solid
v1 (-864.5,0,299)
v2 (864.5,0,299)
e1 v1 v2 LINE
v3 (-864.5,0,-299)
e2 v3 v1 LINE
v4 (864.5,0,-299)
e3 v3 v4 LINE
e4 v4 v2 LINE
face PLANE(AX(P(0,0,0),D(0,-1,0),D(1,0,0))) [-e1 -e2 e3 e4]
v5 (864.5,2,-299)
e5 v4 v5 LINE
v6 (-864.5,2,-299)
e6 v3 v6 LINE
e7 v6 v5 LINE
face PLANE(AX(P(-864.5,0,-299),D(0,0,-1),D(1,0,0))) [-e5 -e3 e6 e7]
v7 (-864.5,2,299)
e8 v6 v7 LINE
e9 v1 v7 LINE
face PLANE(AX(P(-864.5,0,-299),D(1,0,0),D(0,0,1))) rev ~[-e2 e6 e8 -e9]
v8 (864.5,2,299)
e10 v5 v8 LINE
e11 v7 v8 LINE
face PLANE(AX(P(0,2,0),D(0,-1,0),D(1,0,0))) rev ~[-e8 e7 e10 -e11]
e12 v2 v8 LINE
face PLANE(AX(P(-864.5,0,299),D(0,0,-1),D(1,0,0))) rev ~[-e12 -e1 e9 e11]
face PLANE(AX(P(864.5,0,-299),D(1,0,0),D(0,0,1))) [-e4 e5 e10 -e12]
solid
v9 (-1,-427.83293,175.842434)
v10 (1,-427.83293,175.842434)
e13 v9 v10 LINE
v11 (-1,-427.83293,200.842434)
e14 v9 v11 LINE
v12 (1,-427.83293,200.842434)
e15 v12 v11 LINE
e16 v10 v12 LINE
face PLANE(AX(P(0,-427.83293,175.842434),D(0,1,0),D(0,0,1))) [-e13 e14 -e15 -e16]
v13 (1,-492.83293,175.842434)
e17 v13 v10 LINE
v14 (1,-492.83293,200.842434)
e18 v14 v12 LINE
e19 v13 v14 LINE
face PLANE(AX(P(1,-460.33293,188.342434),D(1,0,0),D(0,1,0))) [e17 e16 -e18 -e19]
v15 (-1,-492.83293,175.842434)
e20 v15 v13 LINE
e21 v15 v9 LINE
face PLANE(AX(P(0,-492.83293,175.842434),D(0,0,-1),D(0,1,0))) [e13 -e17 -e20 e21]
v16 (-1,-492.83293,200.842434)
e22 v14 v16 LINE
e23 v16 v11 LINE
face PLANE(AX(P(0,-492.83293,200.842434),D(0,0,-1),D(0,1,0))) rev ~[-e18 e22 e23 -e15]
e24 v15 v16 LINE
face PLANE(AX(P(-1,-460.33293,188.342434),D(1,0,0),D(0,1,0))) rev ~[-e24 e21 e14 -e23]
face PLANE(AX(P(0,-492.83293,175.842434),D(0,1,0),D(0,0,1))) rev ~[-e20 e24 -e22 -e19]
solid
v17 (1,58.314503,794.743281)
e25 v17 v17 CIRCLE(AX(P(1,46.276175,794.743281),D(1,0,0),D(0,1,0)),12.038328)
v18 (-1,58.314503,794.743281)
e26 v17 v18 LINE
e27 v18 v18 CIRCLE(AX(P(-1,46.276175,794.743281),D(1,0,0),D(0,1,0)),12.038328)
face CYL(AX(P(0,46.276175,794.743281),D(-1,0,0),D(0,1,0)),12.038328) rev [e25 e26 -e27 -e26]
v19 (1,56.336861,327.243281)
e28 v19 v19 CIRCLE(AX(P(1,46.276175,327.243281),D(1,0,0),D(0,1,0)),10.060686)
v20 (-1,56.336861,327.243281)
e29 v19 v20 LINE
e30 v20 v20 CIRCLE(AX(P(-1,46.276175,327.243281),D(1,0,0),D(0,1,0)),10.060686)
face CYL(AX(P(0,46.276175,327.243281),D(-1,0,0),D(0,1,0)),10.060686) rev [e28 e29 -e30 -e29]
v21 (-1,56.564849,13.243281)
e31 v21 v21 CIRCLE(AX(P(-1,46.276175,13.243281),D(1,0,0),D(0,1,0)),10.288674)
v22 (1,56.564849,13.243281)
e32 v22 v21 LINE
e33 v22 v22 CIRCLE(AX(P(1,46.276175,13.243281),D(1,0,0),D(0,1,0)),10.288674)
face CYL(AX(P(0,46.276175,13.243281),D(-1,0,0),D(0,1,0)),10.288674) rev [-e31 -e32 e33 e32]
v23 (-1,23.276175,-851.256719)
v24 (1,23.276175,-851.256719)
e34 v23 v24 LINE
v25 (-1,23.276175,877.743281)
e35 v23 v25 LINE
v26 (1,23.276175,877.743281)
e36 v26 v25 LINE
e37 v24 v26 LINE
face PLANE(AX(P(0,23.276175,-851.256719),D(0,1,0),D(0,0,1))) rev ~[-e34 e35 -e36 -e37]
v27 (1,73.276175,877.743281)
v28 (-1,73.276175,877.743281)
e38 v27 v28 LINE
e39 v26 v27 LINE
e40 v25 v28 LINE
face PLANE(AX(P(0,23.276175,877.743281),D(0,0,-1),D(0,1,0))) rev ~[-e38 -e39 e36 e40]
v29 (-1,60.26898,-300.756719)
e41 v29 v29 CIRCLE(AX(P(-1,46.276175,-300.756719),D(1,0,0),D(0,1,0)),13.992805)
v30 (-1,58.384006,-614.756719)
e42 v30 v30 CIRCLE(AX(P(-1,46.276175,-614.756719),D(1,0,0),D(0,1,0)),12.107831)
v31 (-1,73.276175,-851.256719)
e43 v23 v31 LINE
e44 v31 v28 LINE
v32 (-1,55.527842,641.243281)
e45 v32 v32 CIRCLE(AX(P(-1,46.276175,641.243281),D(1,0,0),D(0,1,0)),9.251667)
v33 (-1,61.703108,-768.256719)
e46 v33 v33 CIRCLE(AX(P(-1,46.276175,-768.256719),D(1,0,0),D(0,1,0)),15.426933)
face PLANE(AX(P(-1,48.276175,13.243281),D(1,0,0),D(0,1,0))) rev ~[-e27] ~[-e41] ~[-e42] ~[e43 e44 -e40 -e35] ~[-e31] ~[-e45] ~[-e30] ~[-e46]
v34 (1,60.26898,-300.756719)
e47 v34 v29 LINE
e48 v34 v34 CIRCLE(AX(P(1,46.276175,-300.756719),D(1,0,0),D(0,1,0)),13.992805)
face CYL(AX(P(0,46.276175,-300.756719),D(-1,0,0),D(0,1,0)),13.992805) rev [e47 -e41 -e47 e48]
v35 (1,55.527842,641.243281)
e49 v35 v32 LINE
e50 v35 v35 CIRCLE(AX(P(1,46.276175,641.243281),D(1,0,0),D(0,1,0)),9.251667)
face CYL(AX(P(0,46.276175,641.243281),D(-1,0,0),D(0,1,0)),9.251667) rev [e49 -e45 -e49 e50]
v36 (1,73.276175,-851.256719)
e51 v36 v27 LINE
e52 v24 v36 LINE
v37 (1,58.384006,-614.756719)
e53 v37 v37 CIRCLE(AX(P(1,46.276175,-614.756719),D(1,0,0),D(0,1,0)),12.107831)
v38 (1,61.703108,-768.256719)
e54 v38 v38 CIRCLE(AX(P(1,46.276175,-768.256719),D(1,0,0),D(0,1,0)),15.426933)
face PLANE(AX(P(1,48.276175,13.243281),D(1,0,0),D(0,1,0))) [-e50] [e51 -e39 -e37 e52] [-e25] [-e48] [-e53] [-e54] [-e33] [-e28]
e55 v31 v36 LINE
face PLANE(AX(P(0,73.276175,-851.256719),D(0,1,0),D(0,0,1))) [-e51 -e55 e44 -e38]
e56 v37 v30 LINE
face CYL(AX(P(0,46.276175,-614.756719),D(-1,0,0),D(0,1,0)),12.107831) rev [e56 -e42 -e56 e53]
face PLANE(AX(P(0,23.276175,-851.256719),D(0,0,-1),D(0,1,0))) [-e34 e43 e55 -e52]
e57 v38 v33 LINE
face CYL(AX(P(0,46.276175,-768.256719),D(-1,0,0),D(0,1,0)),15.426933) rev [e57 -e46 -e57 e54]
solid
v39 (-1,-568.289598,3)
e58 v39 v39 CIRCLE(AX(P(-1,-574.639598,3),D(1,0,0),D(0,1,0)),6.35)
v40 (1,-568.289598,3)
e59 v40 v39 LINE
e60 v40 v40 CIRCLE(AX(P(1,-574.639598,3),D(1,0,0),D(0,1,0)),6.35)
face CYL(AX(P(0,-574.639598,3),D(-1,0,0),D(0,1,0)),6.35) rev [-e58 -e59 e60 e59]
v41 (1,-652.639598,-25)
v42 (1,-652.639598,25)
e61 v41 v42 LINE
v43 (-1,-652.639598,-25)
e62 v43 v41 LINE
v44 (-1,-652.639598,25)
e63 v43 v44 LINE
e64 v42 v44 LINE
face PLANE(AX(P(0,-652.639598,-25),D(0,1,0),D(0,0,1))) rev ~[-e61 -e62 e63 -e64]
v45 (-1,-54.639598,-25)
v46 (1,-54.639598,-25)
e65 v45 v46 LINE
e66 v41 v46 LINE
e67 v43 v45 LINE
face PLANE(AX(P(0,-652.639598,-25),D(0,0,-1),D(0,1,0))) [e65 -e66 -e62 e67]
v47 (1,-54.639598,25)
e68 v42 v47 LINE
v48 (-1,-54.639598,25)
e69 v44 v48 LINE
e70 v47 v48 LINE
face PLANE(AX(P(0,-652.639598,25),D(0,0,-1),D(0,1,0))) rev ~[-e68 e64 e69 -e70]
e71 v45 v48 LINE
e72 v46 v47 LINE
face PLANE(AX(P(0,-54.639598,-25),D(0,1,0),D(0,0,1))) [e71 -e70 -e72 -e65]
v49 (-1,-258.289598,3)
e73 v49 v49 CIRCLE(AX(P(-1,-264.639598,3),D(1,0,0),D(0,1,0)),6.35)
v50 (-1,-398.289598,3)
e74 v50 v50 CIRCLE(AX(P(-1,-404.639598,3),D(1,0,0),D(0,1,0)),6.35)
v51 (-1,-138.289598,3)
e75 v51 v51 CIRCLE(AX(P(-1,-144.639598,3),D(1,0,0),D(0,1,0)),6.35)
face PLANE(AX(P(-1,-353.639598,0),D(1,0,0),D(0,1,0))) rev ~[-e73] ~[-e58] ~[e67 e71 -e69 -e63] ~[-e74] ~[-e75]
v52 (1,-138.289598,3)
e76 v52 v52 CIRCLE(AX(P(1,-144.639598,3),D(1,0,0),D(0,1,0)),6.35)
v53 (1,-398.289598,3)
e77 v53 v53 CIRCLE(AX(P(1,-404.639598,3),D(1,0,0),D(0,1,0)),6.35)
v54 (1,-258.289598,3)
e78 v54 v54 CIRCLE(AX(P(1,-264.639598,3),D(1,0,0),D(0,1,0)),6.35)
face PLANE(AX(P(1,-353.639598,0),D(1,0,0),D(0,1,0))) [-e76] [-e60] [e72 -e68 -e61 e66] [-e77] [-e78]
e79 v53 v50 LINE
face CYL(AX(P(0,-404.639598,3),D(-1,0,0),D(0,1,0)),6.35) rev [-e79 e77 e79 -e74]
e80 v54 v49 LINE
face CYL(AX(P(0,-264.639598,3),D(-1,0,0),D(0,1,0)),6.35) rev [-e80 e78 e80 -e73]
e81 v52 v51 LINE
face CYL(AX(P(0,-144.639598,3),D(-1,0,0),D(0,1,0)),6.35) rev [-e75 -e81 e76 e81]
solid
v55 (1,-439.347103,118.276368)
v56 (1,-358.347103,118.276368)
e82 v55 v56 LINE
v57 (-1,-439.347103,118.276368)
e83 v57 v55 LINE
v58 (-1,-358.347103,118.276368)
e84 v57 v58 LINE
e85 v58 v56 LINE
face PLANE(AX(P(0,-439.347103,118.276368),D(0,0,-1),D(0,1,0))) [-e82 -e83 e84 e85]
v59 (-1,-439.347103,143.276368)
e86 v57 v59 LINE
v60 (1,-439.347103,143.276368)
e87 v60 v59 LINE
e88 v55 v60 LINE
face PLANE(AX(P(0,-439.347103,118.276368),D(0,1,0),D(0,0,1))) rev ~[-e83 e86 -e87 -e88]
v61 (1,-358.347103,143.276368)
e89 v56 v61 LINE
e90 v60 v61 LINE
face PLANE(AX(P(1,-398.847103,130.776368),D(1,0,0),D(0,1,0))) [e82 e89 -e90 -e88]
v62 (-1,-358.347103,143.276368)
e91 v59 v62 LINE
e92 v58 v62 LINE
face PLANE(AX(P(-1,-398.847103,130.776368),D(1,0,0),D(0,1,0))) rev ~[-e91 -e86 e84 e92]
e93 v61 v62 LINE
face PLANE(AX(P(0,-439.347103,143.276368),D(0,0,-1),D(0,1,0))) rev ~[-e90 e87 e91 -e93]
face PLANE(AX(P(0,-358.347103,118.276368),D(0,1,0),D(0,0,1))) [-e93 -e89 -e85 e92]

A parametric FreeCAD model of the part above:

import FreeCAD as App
import Part
import Sketcher


def add_polygon(sketch, points):
    """Adds a closed chain of lines whose ends are joined by coincident constraints."""
    first, n = sketch.GeometryCount, len(points)
    for a, b in zip(points, points[1:] + points[:1]):
        sketch.addGeometry(Part.LineSegment(App.Vector(*a, 0), App.Vector(*b, 0)), False)
    for i in range(n):
        sketch.addConstraint(Sketcher.Constraint("Coincident", first + i, 2, first + (i + 1) % n, 1))

doc = App.newDocument("Part")
body = doc.addObject("PartDesign::Body", "Body")

sketch1 = doc.addObject("Sketcher::SketchObject", "Sketch")
body.addObject(sketch1)
sketch1.AttachmentSupport = (doc.XZ_Plane, [""])
sketch1.MapMode = "FlatFace"
add_polygon(sketch1, [(-864, 299), (-864, -299), (864, -299), (864, 299)])
sketch1.addConstraint(Sketcher.Constraint("Vertical", 0))
sketch1.addConstraint(Sketcher.Constraint("Horizontal", 1))
sketch1.addConstraint(Sketcher.Constraint("Vertical", 2))
sketch1.addConstraint(Sketcher.Constraint("Horizontal", 3))
sketch1.addConstraint(Sketcher.Constraint("Symmetric", 0, 2, 2, 2, -1, 1))
sketch1.addConstraint(Sketcher.Constraint("DistanceX", 1, 1, 1, 2, 1729.0))
sketch1.addConstraint(Sketcher.Constraint("DistanceY", 0, 2, 0, 1, 598.0))
pad1 = doc.addObject("PartDesign::Pad", "Pad")
body.addObject(pad1)
pad1.Profile = sketch1
pad1.Length = 2
pad1.Reversed = True
body2 = doc.addObject("PartDesign::Body", "Body001")

sketch2 = doc.addObject("Sketcher::SketchObject", "Sketch001")
body2.addObject(sketch2)
sketch2.AttachmentSupport = (doc.getObject("YZ_Plane001"), [""])
sketch2.MapMode = "FlatFace"
add_polygon(sketch2, [(-653, 25), (-653, -25), (-55, -25), (-55, 25)])
sketch2.addGeometry(Part.Circle(App.Vector(-575, 3, 0), App.Vector(0, 0, 1), 6), False)
sketch2.addGeometry(Part.Circle(App.Vector(-405, 3, 0), App.Vector(0, 0, 1), 6), False)
sketch2.addGeometry(Part.Circle(App.Vector(-265, 3, 0), App.Vector(0, 0, 1), 6), False)
sketch2.addGeometry(Part.Circle(App.Vector(-145, 3, 0), App.Vector(0, 0, 1), 6), False)
sketch2.addConstraint(Sketcher.Constraint("Vertical", 0))
sketch2.addConstraint(Sketcher.Constraint("Horizontal", 1))
sketch2.addConstraint(Sketcher.Constraint("Vertical", 2))
sketch2.addConstraint(Sketcher.Constraint("Horizontal", 3))
sketch2.addConstraint(Sketcher.Constraint("Equal", 4, 5))
sketch2.addConstraint(Sketcher.Constraint("Equal", 5, 6))
sketch2.addConstraint(Sketcher.Constraint("Equal", 6, 7))
sketch2.addConstraint(Sketcher.Constraint("Horizontal", 4, 3, 5, 3))
sketch2.addConstraint(Sketcher.Constraint("Horizontal", 5, 3, 6, 3))
sketch2.addConstraint(Sketcher.Constraint("Horizontal", 6, 3, 7, 3))
sketch2.addConstraint(Sketcher.Constraint("Diameter", 4, 12.7))
sketch2.addConstraint(Sketcher.Constraint("DistanceX", 1, 1, 1, 2, 598.0))
sketch2.addConstraint(Sketcher.Constraint("DistanceY", 0, 2, 0, 1, 50.0))
sketch2.addConstraint(Sketcher.Constraint("DistanceY", -1, 1, 4, 3, 3.0))
sketch2.addConstraint(Sketcher.Constraint("DistanceY", 0, 2, -1, 1, 25.0))
sketch2.addConstraint(Sketcher.Constraint("DistanceX", 4, 3, 5, 3, 170.0))
sketch2.addConstraint(Sketcher.Constraint("DistanceX", 5, 3, 6, 3, 140.0))
sketch2.addConstraint(Sketcher.Constraint("DistanceX", 6, 3, 7, 3, 120.0))
sketch2.addConstraint(Sketcher.Constraint("DistanceX", 0, 2, 4, 3, 78.0))
sketch2.addConstraint(Sketcher.Constraint("DistanceX", 4, 3, -1, 1, 574.639598))
pad2 = doc.addObject("PartDesign::Pad", "Pad001")
body2.addObject(pad2)
pad2.Profile = sketch2
pad2.Length = 2
pad2.Midplane = True
body3 = doc.addObject("PartDesign::Body", "Body002")

sketch3 = doc.addObject("Sketcher::SketchObject", "Sketch002")
body3.addObject(sketch3)
sketch3.AttachmentSupport = (doc.getObject("YZ_Plane002"), [""])
sketch3.MapMode = "FlatFace"
add_polygon(sketch3, [(23, 878), (23, -851), (73, -851), (73, 878)])
sketch3.addGeometry(Part.Circle(App.Vector(46, -768, 0), App.Vector(0, 0, 1), 15), False)
sketch3.addGeometry(Part.Circle(App.Vector(46, -615, 0), App.Vector(0, 0, 1), 12), False)
sketch3.addGeometry(Part.Circle(App.Vector(46, -301, 0), App.Vector(0, 0, 1), 14), False)
sketch3.addGeometry(Part.Circle(App.Vector(46, 13, 0), App.Vector(0, 0, 1), 10), False)
sketch3.addGeometry(Part.Circle(App.Vector(46, 327, 0), App.Vector(0, 0, 1), 10), False)
sketch3.addGeometry(Part.Circle(App.Vector(46, 641, 0), App.Vector(0, 0, 1), 9), False)
sketch3.addGeometry(Part.Circle(App.Vector(46, 795, 0), App.Vector(0, 0, 1), 12), False)
sketch3.addConstraint(Sketcher.Constraint("Vertical", 0))
sketch3.addConstraint(Sketcher.Constraint("Horizontal", 1))
sketch3.addConstraint(Sketcher.Constraint("Vertical", 2))
sketch3.addConstraint(Sketcher.Constraint("Horizontal", 3))
sketch3.addConstraint(Sketcher.Constraint("Vertical", 4, 3, 5, 3))
sketch3.addConstraint(Sketcher.Constraint("Vertical", 5, 3, 6, 3))
sketch3.addConstraint(Sketcher.Constraint("Vertical", 6, 3, 7, 3))
sketch3.addConstraint(Sketcher.Constraint("Vertical", 7, 3, 8, 3))
sketch3.addConstraint(Sketcher.Constraint("Vertical", 8, 3, 9, 3))
sketch3.addConstraint(Sketcher.Constraint("Vertical", 9, 3, 10, 3))
sketch3.addConstraint(Sketcher.Constraint("DistanceX", 1, 1, 1, 2, 50.0))
sketch3.addConstraint(Sketcher.Constraint("DistanceY", 0, 2, 0, 1, 1729.0))
sketch3.addConstraint(Sketcher.Constraint("DistanceY", 5, 3, 6, 3, 314.0))
sketch3.addConstraint(Sketcher.Constraint("DistanceY", 6, 3, 7, 3, 314.0))
sketch3.addConstraint(Sketcher.Constraint("DistanceY", 7, 3, 8, 3, 314.0))
sketch3.addConstraint(Sketcher.Constraint("DistanceY", 8, 3, 9, 3, 314.0))
sketch3.addConstraint(Sketcher.Constraint("DistanceX", 0, 2, 4, 3, 23.0))
sketch3.addConstraint(Sketcher.Constraint("DistanceY", 0, 2, 4, 3, 83.0))
sketch3.addConstraint(Sketcher.Constraint("DistanceY", 10, 3, 2, 2, 83.0))
sketch3.addConstraint(Sketcher.Constraint("DistanceY", 4, 3, 5, 3, 153.5))
sketch3.addConstraint(Sketcher.Constraint("Diameter", 5, 24.215662))
sketch3.addConstraint(Sketcher.Constraint("Diameter", 6, 27.98561))
sketch3.addConstraint(Sketcher.Constraint("Diameter", 7, 20.577348))
sketch3.addConstraint(Sketcher.Constraint("Diameter", 4, 30.853866))
sketch3.addConstraint(Sketcher.Constraint("Diameter", 8, 20.121372))
sketch3.addConstraint(Sketcher.Constraint("Diameter", 9, 18.503334))
sketch3.addConstraint(Sketcher.Constraint("Diameter", 10, 24.076656))
sketch3.addConstraint(Sketcher.Constraint("DistanceY", 4, 3, -1, 1, 768.256719))
sketch3.addConstraint(Sketcher.Constraint("DistanceX", -1, 1, 4, 3, 46.276175))
pad3 = doc.addObject("PartDesign::Pad", "Pad002")
body3.addObject(pad3)
pad3.Profile = sketch3
pad3.Length = 2
pad3.Midplane = True
body4 = doc.addObject("PartDesign::Body", "Body003")

sketch4 = doc.addObject("Sketcher::SketchObject", "Sketch003")
body4.addObject(sketch4)
sketch4.AttachmentSupport = (doc.getObject("YZ_Plane003"), [""])
sketch4.MapMode = "FlatFace"
add_polygon(sketch4, [(-493, 201), (-493, 176), (-428, 176), (-428, 201)])
sketch4.addConstraint(Sketcher.Constraint("Vertical", 0))
sketch4.addConstraint(Sketcher.Constraint("Horizontal", 1))
sketch4.addConstraint(Sketcher.Constraint("Vertical", 2))
sketch4.addConstraint(Sketcher.Constraint("Horizontal", 3))
sketch4.addConstraint(Sketcher.Constraint("DistanceX", 1, 1, 1, 2, 65.0))
sketch4.addConstraint(Sketcher.Constraint("DistanceY", 0, 2, 0, 1, 25.0))
sketch4.addConstraint(Sketcher.Constraint("DistanceX", 0, 2, -1, 1, 492.83293))
sketch4.addConstraint(Sketcher.Constraint("DistanceY", -1, 1, 0, 2, 175.842434))
pad4 = doc.addObject("PartDesign::Pad", "Pad003")
body4.addObject(pad4)
pad4.Profile = sketch4
pad4.Length = 2
pad4.Midplane = True
body5 = doc.addObject("PartDesign::Body", "Body004")

sketch5 = doc.addObject("Sketcher::SketchObject", "Sketch004")
body5.addObject(sketch5)
sketch5.AttachmentSupport = (doc.getObject("YZ_Plane004"), [""])
sketch5.MapMode = "FlatFace"
add_polygon(sketch5, [(-439, 143), (-439, 118), (-358, 118), (-358, 143)])
sketch5.addConstraint(Sketcher.Constraint("Vertical", 0))
sketch5.addConstraint(Sketcher.Constraint("Horizontal", 1))
sketch5.addConstraint(Sketcher.Constraint("Vertical", 2))
sketch5.addConstraint(Sketcher.Constraint("Horizontal", 3))
sketch5.addConstraint(Sketcher.Constraint("DistanceX", 1, 1, 1, 2, 81.0))
sketch5.addConstraint(Sketcher.Constraint("DistanceY", 0, 2, 0, 1, 25.0))
sketch5.addConstraint(Sketcher.Constraint("DistanceY", -1, 1, 0, 2, 118.276368))
sketch5.addConstraint(Sketcher.Constraint("DistanceX", 0, 2, -1, 1, 439.347103))
pad5 = doc.addObject("PartDesign::Pad", "Pad004")
body5.addObject(pad5)
pad5.Profile = sketch5
pad5.Length = 2
pad5.Midplane = True

doc.recompute()
